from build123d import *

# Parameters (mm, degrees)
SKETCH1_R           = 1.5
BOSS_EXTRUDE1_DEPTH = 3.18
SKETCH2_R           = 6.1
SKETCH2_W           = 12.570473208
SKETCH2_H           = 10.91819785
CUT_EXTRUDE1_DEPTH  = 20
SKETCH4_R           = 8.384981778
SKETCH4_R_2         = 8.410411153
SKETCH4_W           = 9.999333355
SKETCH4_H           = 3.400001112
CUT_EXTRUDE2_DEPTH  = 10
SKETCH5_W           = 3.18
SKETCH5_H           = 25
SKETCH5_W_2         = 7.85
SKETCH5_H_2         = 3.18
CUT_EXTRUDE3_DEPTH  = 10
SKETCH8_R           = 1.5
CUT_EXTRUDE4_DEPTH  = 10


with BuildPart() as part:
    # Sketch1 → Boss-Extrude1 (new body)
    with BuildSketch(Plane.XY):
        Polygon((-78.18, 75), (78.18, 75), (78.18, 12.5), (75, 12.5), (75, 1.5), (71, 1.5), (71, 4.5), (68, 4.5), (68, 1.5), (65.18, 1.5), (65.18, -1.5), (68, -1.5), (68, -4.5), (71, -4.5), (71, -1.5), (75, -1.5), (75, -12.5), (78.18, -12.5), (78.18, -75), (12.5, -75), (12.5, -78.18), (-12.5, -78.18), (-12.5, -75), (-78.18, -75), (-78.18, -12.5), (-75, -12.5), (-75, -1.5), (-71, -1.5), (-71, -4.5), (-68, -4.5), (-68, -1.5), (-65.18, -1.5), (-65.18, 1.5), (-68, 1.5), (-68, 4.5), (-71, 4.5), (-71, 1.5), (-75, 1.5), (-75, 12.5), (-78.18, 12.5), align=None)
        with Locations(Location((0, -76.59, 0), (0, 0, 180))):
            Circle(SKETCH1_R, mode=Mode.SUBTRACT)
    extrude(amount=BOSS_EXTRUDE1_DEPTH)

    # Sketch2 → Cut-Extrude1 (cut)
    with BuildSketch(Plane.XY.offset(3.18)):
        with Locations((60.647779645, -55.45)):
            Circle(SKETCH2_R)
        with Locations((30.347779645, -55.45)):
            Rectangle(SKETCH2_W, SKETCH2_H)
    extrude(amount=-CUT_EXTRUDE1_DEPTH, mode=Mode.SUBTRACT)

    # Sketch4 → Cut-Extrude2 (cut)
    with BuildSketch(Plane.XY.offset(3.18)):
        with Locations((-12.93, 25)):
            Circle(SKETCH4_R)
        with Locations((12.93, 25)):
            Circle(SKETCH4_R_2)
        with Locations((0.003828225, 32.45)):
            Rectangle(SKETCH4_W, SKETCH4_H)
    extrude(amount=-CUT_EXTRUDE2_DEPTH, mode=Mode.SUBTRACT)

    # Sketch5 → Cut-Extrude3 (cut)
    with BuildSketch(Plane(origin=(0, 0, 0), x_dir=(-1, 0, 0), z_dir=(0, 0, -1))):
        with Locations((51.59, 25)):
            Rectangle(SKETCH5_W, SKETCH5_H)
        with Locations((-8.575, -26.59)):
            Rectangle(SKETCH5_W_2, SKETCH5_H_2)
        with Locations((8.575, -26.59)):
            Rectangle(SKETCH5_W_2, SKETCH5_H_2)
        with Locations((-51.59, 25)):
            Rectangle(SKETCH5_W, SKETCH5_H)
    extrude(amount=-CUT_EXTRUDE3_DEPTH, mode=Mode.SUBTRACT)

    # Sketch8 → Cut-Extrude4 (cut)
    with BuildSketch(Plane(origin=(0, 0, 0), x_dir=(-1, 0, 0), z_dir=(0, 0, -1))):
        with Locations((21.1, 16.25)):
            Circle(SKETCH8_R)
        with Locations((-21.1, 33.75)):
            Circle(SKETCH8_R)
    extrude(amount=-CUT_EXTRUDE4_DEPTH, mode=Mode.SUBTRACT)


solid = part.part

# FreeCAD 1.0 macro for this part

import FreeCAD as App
import Part
import Sketcher
Q = App.Units.Quantity

doc = App.newDocument("Part")
params = doc.addObject("Spreadsheet::Sheet", "Params")
for row, (alias, value) in enumerate([
    ("sketch1_diameter", "3 mm"),
    ("sketch1_width", "4 mm"),
    ("sketch1_width2", "3 mm"),
    ("sketch1_width3", "25 mm"),
    ("sketch1_height", "11 mm"),
    ("pad1_length", "3.18 mm"),
    ("sketch2_diameter", "12.2 mm"),
    ("pocket1_length", "20 mm"),
    ("sketch3_height", "3.400001 mm"),
    ("pocket2_length", "10 mm"),
    ("sketch4_height", "25 mm"),
    ("sketch4_width", "3.18 mm"),
    ("sketch4_width2", "7.85 mm"),
    ("pocket3_length", "10 mm"),
    ("sketch5_diameter", "3 mm"),
    ("pocket4_length", "10 mm"),
], start=1):
    params.set(f"A{row}", alias)
    params.set(f"B{row}", "=" + value)
    params.setAlias(f"B{row}", alias)

body = doc.addObject("PartDesign::Body", "Body")

sketch1 = body.newObject("Sketcher::SketchObject", "Sketch")
sketch1.AttachmentSupport = (doc.getObject("XY_Plane"), [""])
sketch1.MapMode = "FlatFace"
sketch1.addGeometry([
    Part.LineSegment(App.Vector(78.2, 75, 0), App.Vector(-78.2, 75, 0)),
    Part.LineSegment(App.Vector(-78.2, 75, 0), App.Vector(-78.2, 12.5, 0)),
    Part.LineSegment(App.Vector(-78.2, 12.5, 0), App.Vector(-75, 12.5, 0)),
    Part.LineSegment(App.Vector(-75, 12.5, 0), App.Vector(-75, 1.5, 0)),
    Part.LineSegment(App.Vector(-75, 1.5, 0), App.Vector(-71, 1.5, 0)),
    Part.LineSegment(App.Vector(-71, 1.5, 0), App.Vector(-71, 4.5, 0)),
    Part.LineSegment(App.Vector(-71, 4.5, 0), App.Vector(-68, 4.5, 0)),
    Part.LineSegment(App.Vector(-68, 4.5, 0), App.Vector(-68, 1.5, 0)),
    Part.LineSegment(App.Vector(-68, 1.5, 0), App.Vector(-65.2, 1.5, 0)),
    Part.LineSegment(App.Vector(-65.2, 1.5, 0), App.Vector(-65.2, -1.5, 0)),
    Part.LineSegment(App.Vector(-65.2, -1.5, 0), App.Vector(-68, -1.5, 0)),
    Part.LineSegment(App.Vector(-68, -1.5, 0), App.Vector(-68, -4.5, 0)),
    Part.LineSegment(App.Vector(-68, -4.5, 0), App.Vector(-71, -4.5, 0)),
    Part.LineSegment(App.Vector(-71, -4.5, 0), App.Vector(-71, -1.5, 0)),
    Part.LineSegment(App.Vector(-71, -1.5, 0), App.Vector(-75, -1.5, 0)),
    Part.LineSegment(App.Vector(-75, -1.5, 0), App.Vector(-75, -12.5, 0)),
    Part.LineSegment(App.Vector(-75, -12.5, 0), App.Vector(-78.2, -12.5, 0)),
    Part.LineSegment(App.Vector(-78.2, -12.5, 0), App.Vector(-78.2, -75, 0)),
    Part.LineSegment(App.Vector(-78.2, -75, 0), App.Vector(-12.5, -75, 0)),
    Part.LineSegment(App.Vector(-12.5, -75, 0), App.Vector(-12.5, -78.2, 0)),
    Part.LineSegment(App.Vector(-12.5, -78.2, 0), App.Vector(12.5, -78.2, 0)),
    Part.LineSegment(App.Vector(12.5, -78.2, 0), App.Vector(12.5, -75, 0)),
    Part.LineSegment(App.Vector(12.5, -75, 0), App.Vector(78.2, -75, 0)),
    Part.LineSegment(App.Vector(78.2, -75, 0), App.Vector(78.2, -12.5, 0)),
    Part.LineSegment(App.Vector(78.2, -12.5, 0), App.Vector(75, -12.5, 0)),
    Part.LineSegment(App.Vector(75, -12.5, 0), App.Vector(75, -1.5, 0)),
    Part.LineSegment(App.Vector(75, -1.5, 0), App.Vector(71, -1.5, 0)),
    Part.LineSegment(App.Vector(71, -1.5, 0), App.Vector(71, -4.5, 0)),
    Part.LineSegment(App.Vector(71, -4.5, 0), App.Vector(68, -4.5, 0)),
    Part.LineSegment(App.Vector(68, -4.5, 0), App.Vector(68, -1.5, 0)),
    Part.LineSegment(App.Vector(68, -1.5, 0), App.Vector(65.2, -1.5, 0)),
    Part.LineSegment(App.Vector(65.2, -1.5, 0), App.Vector(65.2, 1.5, 0)),
    Part.LineSegment(App.Vector(65.2, 1.5, 0), App.Vector(68, 1.5, 0)),
    Part.LineSegment(App.Vector(68, 1.5, 0), App.Vector(68, 4.5, 0)),
    Part.LineSegment(App.Vector(68, 4.5, 0), App.Vector(71, 4.5, 0)),
    Part.LineSegment(App.Vector(71, 4.5, 0), App.Vector(71, 1.5, 0)),
    Part.LineSegment(App.Vector(71, 1.5, 0), App.Vector(75, 1.5, 0)),
    Part.LineSegment(App.Vector(75, 1.5, 0), App.Vector(75, 12.5, 0)),
    Part.LineSegment(App.Vector(75, 12.5, 0), App.Vector(78.2, 12.5, 0)),
    Part.LineSegment(App.Vector(78.2, 12.5, 0), App.Vector(78.2, 75, 0)),
    Part.Circle(App.Vector(0, -76.6, 0), App.Vector(0, 0, 1), 1.5),
], False)
sketch1.addConstraint([
    Sketcher.Constraint("Coincident", 0, 2, 1, 1),
    Sketcher.Constraint("Coincident", 1, 2, 2, 1),
    Sketcher.Constraint("Coincident", 2, 2, 3, 1),
    Sketcher.Constraint("Coincident", 3, 2, 4, 1),
    Sketcher.Constraint("Coincident", 4, 2, 5, 1),
    Sketcher.Constraint("Coincident", 5, 2, 6, 1),
    Sketcher.Constraint("Coincident", 6, 2, 7, 1),
    Sketcher.Constraint("Coincident", 7, 2, 8, 1),
    Sketcher.Constraint("Coincident", 8, 2, 9, 1),
    Sketcher.Constraint("Coincident", 9, 2, 10, 1),
    Sketcher.Constraint("Coincident", 10, 2, 11, 1),
    Sketcher.Constraint("Coincident", 11, 2, 12, 1),
    Sketcher.Constraint("Coincident", 12, 2, 13, 1),
    Sketcher.Constraint("Coincident", 13, 2, 14, 1),
    Sketcher.Constraint("Coincident", 14, 2, 15, 1),
    Sketcher.Constraint("Coincident", 15, 2, 16, 1),
    Sketcher.Constraint("Coincident", 16, 2, 17, 1),
    Sketcher.Constraint("Coincident", 17, 2, 18, 1),
    Sketcher.Constraint("Coincident", 18, 2, 19, 1),
    Sketcher.Constraint("Coincident", 19, 2, 20, 1),
    Sketcher.Constraint("Coincident", 20, 2, 21, 1),
    Sketcher.Constraint("Coincident", 21, 2, 22, 1),
    Sketcher.Constraint("Coincident", 22, 2, 23, 1),
    Sketcher.Constraint("Coincident", 23, 2, 24, 1),
    Sketcher.Constraint("Coincident", 24, 2, 25, 1),
    Sketcher.Constraint("Coincident", 25, 2, 26, 1),
    Sketcher.Constraint("Coincident", 26, 2, 27, 1),
    Sketcher.Constraint("Coincident", 27, 2, 28, 1),
    Sketcher.Constraint("Coincident", 28, 2, 29, 1),
    Sketcher.Constraint("Coincident", 29, 2, 30, 1),
    Sketcher.Constraint("Coincident", 30, 2, 31, 1),
    Sketcher.Constraint("Coincident", 31, 2, 32, 1),
    Sketcher.Constraint("Coincident", 32, 2, 33, 1),
    Sketcher.Constraint("Coincident", 33, 2, 34, 1),
    Sketcher.Constraint("Coincident", 34, 2, 35, 1),
    Sketcher.Constraint("Coincident", 35, 2, 36, 1),
    Sketcher.Constraint("Coincident", 36, 2, 37, 1),
    Sketcher.Constraint("Coincident", 37, 2, 38, 1),
    Sketcher.Constraint("Coincident", 38, 2, 39, 1),
    Sketcher.Constraint("Coincident", 39, 2, 0, 1),
    Sketcher.Constraint("Horizontal", 0),
    Sketcher.Constraint("Vertical", 1),
    Sketcher.Constraint("Horizontal", 2),
    Sketcher.Constraint("Vertical", 3),
    Sketcher.Constraint("Horizontal", 4),
    Sketcher.Constraint("Vertical", 5),
    Sketcher.Constraint("Horizontal", 6),
    Sketcher.Constraint("Vertical", 7),
    Sketcher.Constraint("Horizontal", 8),
    Sketcher.Constraint("Vertical", 9),
    Sketcher.Constraint("Horizontal", 10),
    Sketcher.Constraint("Vertical", 11),
    Sketcher.Constraint("Horizontal", 12),
    Sketcher.Constraint("Vertical", 13),
    Sketcher.Constraint("Horizontal", 14),
    Sketcher.Constraint("Vertical", 15),
    Sketcher.Constraint("Horizontal", 16),
    Sketcher.Constraint("Vertical", 17),
    Sketcher.Constraint("Horizontal", 18),
    Sketcher.Constraint("Vertical", 19),
    Sketcher.Constraint("Horizontal", 20),
    Sketcher.Constraint("Vertical", 21),
    Sketcher.Constraint("Horizontal", 22),
    Sketcher.Constraint("Vertical", 23),
    Sketcher.Constraint("Horizontal", 24),
    Sketcher.Constraint("Vertical", 25),
    Sketcher.Constraint("Horizontal", 26),
    Sketcher.Constraint("Vertical", 27),
    Sketcher.Constraint("Horizontal", 28),
    Sketcher.Constraint("Vertical", 29),
    Sketcher.Constraint("Horizontal", 30),
    Sketcher.Constraint("Vertical", 31),
    Sketcher.Constraint("Horizontal", 32),
    Sketcher.Constraint("Vertical", 33),
    Sketcher.Constraint("Horizontal", 34),
    Sketcher.Constraint("Vertical", 35),
    Sketcher.Constraint("Horizontal", 36),
    Sketcher.Constraint("Vertical", 37),
    Sketcher.Constraint("Horizontal", 38),
    Sketcher.Constraint("Vertical", 39),
    Sketcher.Constraint("Symmetric", 0, 2, 22, 2, -1, 1),
    Sketcher.Constraint("Symmetric", 2, 2, 24, 2, -1, 1),
    Sketcher.Constraint("Symmetric", 4, 2, 26, 2, -1, 1),
    Sketcher.Constraint("Symmetric", 6, 2, 28, 2, -1, 1),
    Sketcher.Constraint("Symmetric", 8, 2, 30, 2, -1, 1),
    Sketcher.Constraint("Symmetric", 10, 2, 32, 2, -1, 1),
    Sketcher.Constraint("Symmetric", 12, 2, 34, 2, -1, 1),
    Sketcher.Constraint("Symmetric", 14, 2, 36, 2, -1, 1),
    Sketcher.Constraint("Symmetric", 16, 2, 38, 2, -1, 1),
    Sketcher.Constraint("Symmetric", 18, 2, 21, 2, -2),
    Sketcher.Constraint("Symmetric", 16, 2, 23, 2, -2),
    Sketcher.Constraint("Symmetric", 14, 2, 25, 2, -2),
    Sketcher.Constraint("Symmetric", 12, 2, 27, 2, -2),
    Sketcher.Constraint("Symmetric", 10, 2, 29, 2, -2),
    Sketcher.Constraint("PointOnObject", 40, 3, -2),
    Sketcher.Constraint("Horizontal", 4, 2, 7, 2),
    Sketcher.Constraint("Equal", 34, 5),
    Sketcher.Constraint("Equal", 7, 9),
    Sketcher.Constraint("Equal", 38, 19),
    Sketcher.Constraint("Diameter", 40, Q("3 mm")),
    Sketcher.Constraint("DistanceX", 4, 1, 4, 2, Q("4 mm")),
    Sketcher.Constraint("DistanceX", 6, 1, 6, 2, Q("3 mm")),
    Sketcher.Constraint("DistanceX", 20, 1, 20, 2, Q("25 mm")),
    Sketcher.Constraint("DistanceY", 3, 2, 3, 1, Q("11 mm")),
    Sketcher.Constraint("DistanceY", 1, 2, 1, 1, Q("62.5 mm")),
    Sketcher.Constraint("DistanceX", 2, 2, -1, 1, Q("75 mm")),
    Sketcher.Constraint("DistanceX", 0, 2, 0, 1, Q("156.36 mm")),
    Sketcher.Constraint("DistanceX", 8, 1, 8, 2, Q("2.82 mm")),
    Sketcher.Constraint("DistanceY", 40, 3, -1, 1, Q("76.59 mm")),
])
sketch1.setExpression("Constraints[99]", "Params.sketch1_diameter")
sketch1.setExpression("Constraints[100]", "Params.sketch1_width")
sketch1.setExpression("Constraints[101]", "Params.sketch1_width2")
sketch1.setExpression("Constraints[102]", "Params.sketch1_width3")
sketch1.setExpression("Constraints[103]", "Params.sketch1_height")
pad1 = body.newObject("PartDesign::Pad", "Pad")
pad1.Profile = sketch1
pad1.setExpression("Length", "Params.pad1_length")

sketch2 = body.newObject("Sketcher::SketchObject", "Sketch001")
sketch2.AttachmentSupport = (doc.getObject("XY_Plane"), [""])
sketch2.MapMode = "FlatFace"
sketch2.AttachmentOffset = App.Placement(App.Vector(0, 0, 3.18), App.Rotation())
sketch2.addGeometry([
    Part.Circle(App.Vector(61, -55, 0), App.Vector(0, 0, 1), 6),
    Part.LineSegment(App.Vector(24, -50, 0), App.Vector(24, -61, 0)),
    Part.LineSegment(App.Vector(24, -61, 0), App.Vector(37, -61, 0)),
    Part.LineSegment(App.Vector(37, -61, 0), App.Vector(37, -50, 0)),
    Part.LineSegment(App.Vector(37, -50, 0), App.Vector(24, -50, 0)),
], False)
sketch2.addConstraint([
    Sketcher.Constraint("Coincident", 1, 2, 2, 1),
    Sketcher.Constraint("Coincident", 2, 2, 3, 1),
    Sketcher.Constraint("Coincident", 3, 2, 4, 1),
    Sketcher.Constraint("Coincident", 4, 2, 1, 1),
    Sketcher.Constraint("Vertical", 1),
    Sketcher.Constraint("Horizontal", 2),
    Sketcher.Constraint("Vertical", 3),
    Sketcher.Constraint("Horizontal", 4),
    Sketcher.Constraint("Diameter", 0, Q("12.2 mm")),
    Sketcher.Constraint("DistanceY", 0, 3, -1, 1, Q("55.45 mm")),
    Sketcher.Constraint("DistanceY", 1, 2, -1, 1, Q("60.909099 mm")),
    Sketcher.Constraint("DistanceY", 3, 2, -1, 1, Q("49.990901 mm")),
    Sketcher.Constraint("DistanceX", 2, 1, 2, 2, Q("12.570473 mm")),
    Sketcher.Constraint("DistanceX", -1, 1, 0, 3, Q("60.64778 mm")),
    Sketcher.Constraint("DistanceX", -1, 1, 1, 2, Q("24.062543 mm")),
])
sketch2.setExpression("Constraints[8]", "Params.sketch2_diameter")
pocket1 = body.newObject("PartDesign::Pocket", "Pocket")
pocket1.Profile = sketch2
pocket1.setExpression("Length", "Params.pocket1_length")

sketch3 = body.newObject("Sketcher::SketchObject", "Sketch002")
sketch3.AttachmentSupport = (doc.getObject("XY_Plane"), [""])
sketch3.MapMode = "FlatFace"
sketch3.AttachmentOffset = App.Placement(App.Vector(0, 0, 3.18), App.Rotation())
sketch3.addGeometry([
    Part.Circle(App.Vector(-12.9, 25, 0), App.Vector(0, 0, 1), 8.4),
    Part.Circle(App.Vector(12.9, 25, 0), App.Vector(0, 0, 1), 8.4),
    Part.LineSegment(App.Vector(-5, 34.2, 0), App.Vector(-5, 30.7, 0)),
    Part.LineSegment(App.Vector(-5, 30.7, 0), App.Vector(5, 30.7, 0)),
    Part.LineSegment(App.Vector(5, 30.7, 0), App.Vector(5, 34.2, 0)),
    Part.LineSegment(App.Vector(5, 34.2, 0), App.Vector(-5, 34.2, 0)),
], False)
sketch3.addConstraint([
    Sketcher.Constraint("Coincident", 2, 2, 3, 1),
    Sketcher.Constraint("Coincident", 3, 2, 4, 1),
    Sketcher.Constraint("Coincident", 4, 2, 5, 1),
    Sketcher.Constraint("Coincident", 5, 2, 2, 1),
    Sketcher.Constraint("Vertical", 2),
    Sketcher.Constraint("Horizontal", 3),
    Sketcher.Constraint("Vertical", 4),
    Sketcher.Constraint("Horizontal", 5),
    Sketcher.Constraint("Symmetric", 0, 3, 1, 3, -2),
    Sketcher.Constraint("DistanceY", 2, 2, 2, 1, Q("3.400001 mm")),
    Sketcher.Constraint("DistanceY", -1, 1, 0, 3, Q("25 mm")),
    Sketcher.Constraint("DistanceX", 0, 3, -1, 1, Q("12.93 mm")),
    Sketcher.Constraint("DistanceY", -1, 1, 2, 2, Q("30.749999 mm")),
    Sketcher.Constraint("Diameter", 0, Q("16.769964 mm")),
    Sketcher.Constraint("Diameter", 1, Q("16.820822 mm")),
    Sketcher.Constraint("DistanceX", 3, 1, 3, 2, Q("9.999333 mm")),
    Sketcher.Constraint("DistanceX", 2, 2, -1, 1, Q("4.995838 mm")),
])
sketch3.setExpression("Constraints[9]", "Params.sketch3_height")
pocket2 = body.newObject("PartDesign::Pocket", "Pocket001")
pocket2.Profile = sketch3
pocket2.setExpression("Length", "Params.pocket2_length")

sketch4 = body.newObject("Sketcher::SketchObject", "Sketch003")
sketch4.AttachmentSupport = (doc.getObject("XY_Plane"), [""])
sketch4.MapMode = "FlatFace"
sketch4.addGeometry([
    Part.LineSegment(App.Vector(-50, 37.5, 0), App.Vector(-50, 12.5, 0)),
    Part.LineSegment(App.Vector(-50, 12.5, 0), App.Vector(-53.2, 12.5, 0)),
    Part.LineSegment(App.Vector(-53.2, 12.5, 0), App.Vector(-53.2, 37.5, 0)),
    Part.LineSegment(App.Vector(-53.2, 37.5, 0), App.Vector(-50, 37.5, 0)),
    Part.LineSegment(App.Vector(12.5, -25, 0), App.Vector(12.5, -28.2, 0)),
    Part.LineSegment(App.Vector(12.5, -28.2, 0), App.Vector(4.7, -28.2, 0)),
    Part.LineSegment(App.Vector(4.7, -28.2, 0), App.Vector(4.7, -25, 0)),
    Part.LineSegment(App.Vector(4.7, -25, 0), App.Vector(12.5, -25, 0)),
    Part.LineSegment(App.Vector(-4.7, -25, 0), App.Vector(-4.7, -28.2, 0)),
    Part.LineSegment(App.Vector(-4.7, -28.2, 0), App.Vector(-12.5, -28.2, 0)),
    Part.LineSegment(App.Vector(-12.5, -28.2, 0), App.Vector(-12.5, -25, 0)),
    Part.LineSegment(App.Vector(-12.5, -25, 0), App.Vector(-4.7, -25, 0)),
    Part.LineSegment(App.Vector(53.2, 37.5, 0), App.Vector(53.2, 12.5, 0)),
    Part.LineSegment(App.Vector(53.2, 12.5, 0), App.Vector(50, 12.5, 0)),
    Part.LineSegment(App.Vector(50, 12.5, 0), App.Vector(50, 37.5, 0)),
    Part.LineSegment(App.Vector(50, 37.5, 0), App.Vector(53.2, 37.5, 0)),
], False)
sketch4.addConstraint([
    Sketcher.Constraint("Coincident", 0, 2, 1, 1),
    Sketcher.Constraint("Coincident", 1, 2, 2, 1),
    Sketcher.Constraint("Coincident", 2, 2, 3, 1),
    Sketcher.Constraint("Coincident", 3, 2, 0, 1),
    Sketcher.Constraint("Coincident", 4, 2, 5, 1),
    Sketcher.Constraint("Coincident", 5, 2, 6, 1),
    Sketcher.Constraint("Coincident", 6, 2, 7, 1),
    Sketcher.Constraint("Coincident", 7, 2, 4, 1),
    Sketcher.Constraint("Coincident", 8, 2, 9, 1),
    Sketcher.Constraint("Coincident", 9, 2, 10, 1),
    Sketcher.Constraint("Coincident", 10, 2, 11, 1),
    Sketcher.Constraint("Coincident", 11, 2, 8, 1),
    Sketcher.Constraint("Coincident", 12, 2, 13, 1),
    Sketcher.Constraint("Coincident", 13, 2, 14, 1),
    Sketcher.Constraint("Coincident", 14, 2, 15, 1),
    Sketcher.Constraint("Coincident", 15, 2, 12, 1),
    Sketcher.Constraint("Vertical", 0),
    Sketcher.Constraint("Horizontal", 1),
    Sketcher.Constraint("Vertical", 2),
    Sketcher.Constraint("Horizontal", 3),
    Sketcher.Constraint("Vertical", 4),
    Sketcher.Constraint("Horizontal", 5),
    Sketcher.Constraint("Vertical", 6),
    Sketcher.Constraint("Horizontal", 7),
    Sketcher.Constraint("Vertical", 8),
    Sketcher.Constraint("Horizontal", 9),
    Sketcher.Constraint("Vertical", 10),
    Sketcher.Constraint("Horizontal", 11),
    Sketcher.Constraint("Vertical", 12),
    Sketcher.Constraint("Horizontal", 13),
    Sketcher.Constraint("Vertical", 14),
    Sketcher.Constraint("Horizontal", 15),
    Sketcher.Constraint("Symmetric", 5, 2, 8, 2, -2),
    Sketcher.Constraint("Symmetric", 7, 2, 10, 2, -2),
    Sketcher.Constraint("Symmetric", 1, 2, 12, 2, -2),
    Sketcher.Constraint("Symmetric", 3, 2, 14, 2, -2),
    Sketcher.Constraint("Equal", 15, 4),
    Sketcher.Constraint("DistanceY", 0, 2, 0, 1, Q("25 mm")),
    Sketcher.Constraint("DistanceX", 0, 2, -1, 1, Q("50 mm")),
    Sketcher.Constraint("DistanceY", 6, 2, -1, 1, Q("25 mm")),
    Sketcher.Constraint("DistanceX", 9, 2, 4, 2, Q("25 mm")),
    Sketcher.Constraint("DistanceX", 1, 2, 1, 1, Q("3.18 mm")),
    Sketcher.Constraint("DistanceX", 5, 2, 5, 1, Q("7.85 mm")),
    Sketcher.Constraint("DistanceY", -1, 1, 0, 2, Q("12.5 mm")),
])
sketch4.setExpression("Constraints[37]", "Params.sketch4_height")
sketch4.setExpression("Constraints[41]", "Params.sketch4_width")
sketch4.setExpression("Constraints[42]", "Params.sketch4_width2")
pocket3 = body.newObject("PartDesign::Pocket", "Pocket002")
pocket3.Profile = sketch4
pocket3.setExpression("Length", "Params.pocket3_length")
pocket3.Reversed = True

sketch5 = body.newObject("Sketcher::SketchObject", "Sketch004")
sketch5.AttachmentSupport = (doc.getObject("XY_Plane"), [""])
sketch5.MapMode = "FlatFace"
sketch5.addGeometry([
    Part.Circle(App.Vector(-21.1, 16.2, 0), App.Vector(0, 0, 1), 1.5),
    Part.Circle(App.Vector(21.1, 33.8, 0), App.Vector(0, 0, 1), 1.5),
], False)
sketch5.addConstraint([
    Sketcher.Constraint("Equal", 0, 1),
    Sketcher.Constraint("Diameter", 0, Q("3 mm")),
    Sketcher.Constraint("DistanceX", 0, 3, -1, 1, Q("21.1 mm")),
    Sketcher.Constraint("DistanceX", -1, 1, 1, 3, Q("21.1 mm")),
    Sketcher.Constraint("DistanceY", 0, 3, 1, 3, Q("17.5 mm")),
    Sketcher.Constraint("DistanceY", -1, 1, 0, 3, Q("16.25 mm")),
])
sketch5.setExpression("Constraints[1]", "Params.sketch5_diameter")
pocket4 = body.newObject("PartDesign::Pocket", "Pocket003")
pocket4.Profile = sketch5
pocket4.setExpression("Length", "Params.pocket4_length")
pocket4.Reversed = True

doc.recompute()
